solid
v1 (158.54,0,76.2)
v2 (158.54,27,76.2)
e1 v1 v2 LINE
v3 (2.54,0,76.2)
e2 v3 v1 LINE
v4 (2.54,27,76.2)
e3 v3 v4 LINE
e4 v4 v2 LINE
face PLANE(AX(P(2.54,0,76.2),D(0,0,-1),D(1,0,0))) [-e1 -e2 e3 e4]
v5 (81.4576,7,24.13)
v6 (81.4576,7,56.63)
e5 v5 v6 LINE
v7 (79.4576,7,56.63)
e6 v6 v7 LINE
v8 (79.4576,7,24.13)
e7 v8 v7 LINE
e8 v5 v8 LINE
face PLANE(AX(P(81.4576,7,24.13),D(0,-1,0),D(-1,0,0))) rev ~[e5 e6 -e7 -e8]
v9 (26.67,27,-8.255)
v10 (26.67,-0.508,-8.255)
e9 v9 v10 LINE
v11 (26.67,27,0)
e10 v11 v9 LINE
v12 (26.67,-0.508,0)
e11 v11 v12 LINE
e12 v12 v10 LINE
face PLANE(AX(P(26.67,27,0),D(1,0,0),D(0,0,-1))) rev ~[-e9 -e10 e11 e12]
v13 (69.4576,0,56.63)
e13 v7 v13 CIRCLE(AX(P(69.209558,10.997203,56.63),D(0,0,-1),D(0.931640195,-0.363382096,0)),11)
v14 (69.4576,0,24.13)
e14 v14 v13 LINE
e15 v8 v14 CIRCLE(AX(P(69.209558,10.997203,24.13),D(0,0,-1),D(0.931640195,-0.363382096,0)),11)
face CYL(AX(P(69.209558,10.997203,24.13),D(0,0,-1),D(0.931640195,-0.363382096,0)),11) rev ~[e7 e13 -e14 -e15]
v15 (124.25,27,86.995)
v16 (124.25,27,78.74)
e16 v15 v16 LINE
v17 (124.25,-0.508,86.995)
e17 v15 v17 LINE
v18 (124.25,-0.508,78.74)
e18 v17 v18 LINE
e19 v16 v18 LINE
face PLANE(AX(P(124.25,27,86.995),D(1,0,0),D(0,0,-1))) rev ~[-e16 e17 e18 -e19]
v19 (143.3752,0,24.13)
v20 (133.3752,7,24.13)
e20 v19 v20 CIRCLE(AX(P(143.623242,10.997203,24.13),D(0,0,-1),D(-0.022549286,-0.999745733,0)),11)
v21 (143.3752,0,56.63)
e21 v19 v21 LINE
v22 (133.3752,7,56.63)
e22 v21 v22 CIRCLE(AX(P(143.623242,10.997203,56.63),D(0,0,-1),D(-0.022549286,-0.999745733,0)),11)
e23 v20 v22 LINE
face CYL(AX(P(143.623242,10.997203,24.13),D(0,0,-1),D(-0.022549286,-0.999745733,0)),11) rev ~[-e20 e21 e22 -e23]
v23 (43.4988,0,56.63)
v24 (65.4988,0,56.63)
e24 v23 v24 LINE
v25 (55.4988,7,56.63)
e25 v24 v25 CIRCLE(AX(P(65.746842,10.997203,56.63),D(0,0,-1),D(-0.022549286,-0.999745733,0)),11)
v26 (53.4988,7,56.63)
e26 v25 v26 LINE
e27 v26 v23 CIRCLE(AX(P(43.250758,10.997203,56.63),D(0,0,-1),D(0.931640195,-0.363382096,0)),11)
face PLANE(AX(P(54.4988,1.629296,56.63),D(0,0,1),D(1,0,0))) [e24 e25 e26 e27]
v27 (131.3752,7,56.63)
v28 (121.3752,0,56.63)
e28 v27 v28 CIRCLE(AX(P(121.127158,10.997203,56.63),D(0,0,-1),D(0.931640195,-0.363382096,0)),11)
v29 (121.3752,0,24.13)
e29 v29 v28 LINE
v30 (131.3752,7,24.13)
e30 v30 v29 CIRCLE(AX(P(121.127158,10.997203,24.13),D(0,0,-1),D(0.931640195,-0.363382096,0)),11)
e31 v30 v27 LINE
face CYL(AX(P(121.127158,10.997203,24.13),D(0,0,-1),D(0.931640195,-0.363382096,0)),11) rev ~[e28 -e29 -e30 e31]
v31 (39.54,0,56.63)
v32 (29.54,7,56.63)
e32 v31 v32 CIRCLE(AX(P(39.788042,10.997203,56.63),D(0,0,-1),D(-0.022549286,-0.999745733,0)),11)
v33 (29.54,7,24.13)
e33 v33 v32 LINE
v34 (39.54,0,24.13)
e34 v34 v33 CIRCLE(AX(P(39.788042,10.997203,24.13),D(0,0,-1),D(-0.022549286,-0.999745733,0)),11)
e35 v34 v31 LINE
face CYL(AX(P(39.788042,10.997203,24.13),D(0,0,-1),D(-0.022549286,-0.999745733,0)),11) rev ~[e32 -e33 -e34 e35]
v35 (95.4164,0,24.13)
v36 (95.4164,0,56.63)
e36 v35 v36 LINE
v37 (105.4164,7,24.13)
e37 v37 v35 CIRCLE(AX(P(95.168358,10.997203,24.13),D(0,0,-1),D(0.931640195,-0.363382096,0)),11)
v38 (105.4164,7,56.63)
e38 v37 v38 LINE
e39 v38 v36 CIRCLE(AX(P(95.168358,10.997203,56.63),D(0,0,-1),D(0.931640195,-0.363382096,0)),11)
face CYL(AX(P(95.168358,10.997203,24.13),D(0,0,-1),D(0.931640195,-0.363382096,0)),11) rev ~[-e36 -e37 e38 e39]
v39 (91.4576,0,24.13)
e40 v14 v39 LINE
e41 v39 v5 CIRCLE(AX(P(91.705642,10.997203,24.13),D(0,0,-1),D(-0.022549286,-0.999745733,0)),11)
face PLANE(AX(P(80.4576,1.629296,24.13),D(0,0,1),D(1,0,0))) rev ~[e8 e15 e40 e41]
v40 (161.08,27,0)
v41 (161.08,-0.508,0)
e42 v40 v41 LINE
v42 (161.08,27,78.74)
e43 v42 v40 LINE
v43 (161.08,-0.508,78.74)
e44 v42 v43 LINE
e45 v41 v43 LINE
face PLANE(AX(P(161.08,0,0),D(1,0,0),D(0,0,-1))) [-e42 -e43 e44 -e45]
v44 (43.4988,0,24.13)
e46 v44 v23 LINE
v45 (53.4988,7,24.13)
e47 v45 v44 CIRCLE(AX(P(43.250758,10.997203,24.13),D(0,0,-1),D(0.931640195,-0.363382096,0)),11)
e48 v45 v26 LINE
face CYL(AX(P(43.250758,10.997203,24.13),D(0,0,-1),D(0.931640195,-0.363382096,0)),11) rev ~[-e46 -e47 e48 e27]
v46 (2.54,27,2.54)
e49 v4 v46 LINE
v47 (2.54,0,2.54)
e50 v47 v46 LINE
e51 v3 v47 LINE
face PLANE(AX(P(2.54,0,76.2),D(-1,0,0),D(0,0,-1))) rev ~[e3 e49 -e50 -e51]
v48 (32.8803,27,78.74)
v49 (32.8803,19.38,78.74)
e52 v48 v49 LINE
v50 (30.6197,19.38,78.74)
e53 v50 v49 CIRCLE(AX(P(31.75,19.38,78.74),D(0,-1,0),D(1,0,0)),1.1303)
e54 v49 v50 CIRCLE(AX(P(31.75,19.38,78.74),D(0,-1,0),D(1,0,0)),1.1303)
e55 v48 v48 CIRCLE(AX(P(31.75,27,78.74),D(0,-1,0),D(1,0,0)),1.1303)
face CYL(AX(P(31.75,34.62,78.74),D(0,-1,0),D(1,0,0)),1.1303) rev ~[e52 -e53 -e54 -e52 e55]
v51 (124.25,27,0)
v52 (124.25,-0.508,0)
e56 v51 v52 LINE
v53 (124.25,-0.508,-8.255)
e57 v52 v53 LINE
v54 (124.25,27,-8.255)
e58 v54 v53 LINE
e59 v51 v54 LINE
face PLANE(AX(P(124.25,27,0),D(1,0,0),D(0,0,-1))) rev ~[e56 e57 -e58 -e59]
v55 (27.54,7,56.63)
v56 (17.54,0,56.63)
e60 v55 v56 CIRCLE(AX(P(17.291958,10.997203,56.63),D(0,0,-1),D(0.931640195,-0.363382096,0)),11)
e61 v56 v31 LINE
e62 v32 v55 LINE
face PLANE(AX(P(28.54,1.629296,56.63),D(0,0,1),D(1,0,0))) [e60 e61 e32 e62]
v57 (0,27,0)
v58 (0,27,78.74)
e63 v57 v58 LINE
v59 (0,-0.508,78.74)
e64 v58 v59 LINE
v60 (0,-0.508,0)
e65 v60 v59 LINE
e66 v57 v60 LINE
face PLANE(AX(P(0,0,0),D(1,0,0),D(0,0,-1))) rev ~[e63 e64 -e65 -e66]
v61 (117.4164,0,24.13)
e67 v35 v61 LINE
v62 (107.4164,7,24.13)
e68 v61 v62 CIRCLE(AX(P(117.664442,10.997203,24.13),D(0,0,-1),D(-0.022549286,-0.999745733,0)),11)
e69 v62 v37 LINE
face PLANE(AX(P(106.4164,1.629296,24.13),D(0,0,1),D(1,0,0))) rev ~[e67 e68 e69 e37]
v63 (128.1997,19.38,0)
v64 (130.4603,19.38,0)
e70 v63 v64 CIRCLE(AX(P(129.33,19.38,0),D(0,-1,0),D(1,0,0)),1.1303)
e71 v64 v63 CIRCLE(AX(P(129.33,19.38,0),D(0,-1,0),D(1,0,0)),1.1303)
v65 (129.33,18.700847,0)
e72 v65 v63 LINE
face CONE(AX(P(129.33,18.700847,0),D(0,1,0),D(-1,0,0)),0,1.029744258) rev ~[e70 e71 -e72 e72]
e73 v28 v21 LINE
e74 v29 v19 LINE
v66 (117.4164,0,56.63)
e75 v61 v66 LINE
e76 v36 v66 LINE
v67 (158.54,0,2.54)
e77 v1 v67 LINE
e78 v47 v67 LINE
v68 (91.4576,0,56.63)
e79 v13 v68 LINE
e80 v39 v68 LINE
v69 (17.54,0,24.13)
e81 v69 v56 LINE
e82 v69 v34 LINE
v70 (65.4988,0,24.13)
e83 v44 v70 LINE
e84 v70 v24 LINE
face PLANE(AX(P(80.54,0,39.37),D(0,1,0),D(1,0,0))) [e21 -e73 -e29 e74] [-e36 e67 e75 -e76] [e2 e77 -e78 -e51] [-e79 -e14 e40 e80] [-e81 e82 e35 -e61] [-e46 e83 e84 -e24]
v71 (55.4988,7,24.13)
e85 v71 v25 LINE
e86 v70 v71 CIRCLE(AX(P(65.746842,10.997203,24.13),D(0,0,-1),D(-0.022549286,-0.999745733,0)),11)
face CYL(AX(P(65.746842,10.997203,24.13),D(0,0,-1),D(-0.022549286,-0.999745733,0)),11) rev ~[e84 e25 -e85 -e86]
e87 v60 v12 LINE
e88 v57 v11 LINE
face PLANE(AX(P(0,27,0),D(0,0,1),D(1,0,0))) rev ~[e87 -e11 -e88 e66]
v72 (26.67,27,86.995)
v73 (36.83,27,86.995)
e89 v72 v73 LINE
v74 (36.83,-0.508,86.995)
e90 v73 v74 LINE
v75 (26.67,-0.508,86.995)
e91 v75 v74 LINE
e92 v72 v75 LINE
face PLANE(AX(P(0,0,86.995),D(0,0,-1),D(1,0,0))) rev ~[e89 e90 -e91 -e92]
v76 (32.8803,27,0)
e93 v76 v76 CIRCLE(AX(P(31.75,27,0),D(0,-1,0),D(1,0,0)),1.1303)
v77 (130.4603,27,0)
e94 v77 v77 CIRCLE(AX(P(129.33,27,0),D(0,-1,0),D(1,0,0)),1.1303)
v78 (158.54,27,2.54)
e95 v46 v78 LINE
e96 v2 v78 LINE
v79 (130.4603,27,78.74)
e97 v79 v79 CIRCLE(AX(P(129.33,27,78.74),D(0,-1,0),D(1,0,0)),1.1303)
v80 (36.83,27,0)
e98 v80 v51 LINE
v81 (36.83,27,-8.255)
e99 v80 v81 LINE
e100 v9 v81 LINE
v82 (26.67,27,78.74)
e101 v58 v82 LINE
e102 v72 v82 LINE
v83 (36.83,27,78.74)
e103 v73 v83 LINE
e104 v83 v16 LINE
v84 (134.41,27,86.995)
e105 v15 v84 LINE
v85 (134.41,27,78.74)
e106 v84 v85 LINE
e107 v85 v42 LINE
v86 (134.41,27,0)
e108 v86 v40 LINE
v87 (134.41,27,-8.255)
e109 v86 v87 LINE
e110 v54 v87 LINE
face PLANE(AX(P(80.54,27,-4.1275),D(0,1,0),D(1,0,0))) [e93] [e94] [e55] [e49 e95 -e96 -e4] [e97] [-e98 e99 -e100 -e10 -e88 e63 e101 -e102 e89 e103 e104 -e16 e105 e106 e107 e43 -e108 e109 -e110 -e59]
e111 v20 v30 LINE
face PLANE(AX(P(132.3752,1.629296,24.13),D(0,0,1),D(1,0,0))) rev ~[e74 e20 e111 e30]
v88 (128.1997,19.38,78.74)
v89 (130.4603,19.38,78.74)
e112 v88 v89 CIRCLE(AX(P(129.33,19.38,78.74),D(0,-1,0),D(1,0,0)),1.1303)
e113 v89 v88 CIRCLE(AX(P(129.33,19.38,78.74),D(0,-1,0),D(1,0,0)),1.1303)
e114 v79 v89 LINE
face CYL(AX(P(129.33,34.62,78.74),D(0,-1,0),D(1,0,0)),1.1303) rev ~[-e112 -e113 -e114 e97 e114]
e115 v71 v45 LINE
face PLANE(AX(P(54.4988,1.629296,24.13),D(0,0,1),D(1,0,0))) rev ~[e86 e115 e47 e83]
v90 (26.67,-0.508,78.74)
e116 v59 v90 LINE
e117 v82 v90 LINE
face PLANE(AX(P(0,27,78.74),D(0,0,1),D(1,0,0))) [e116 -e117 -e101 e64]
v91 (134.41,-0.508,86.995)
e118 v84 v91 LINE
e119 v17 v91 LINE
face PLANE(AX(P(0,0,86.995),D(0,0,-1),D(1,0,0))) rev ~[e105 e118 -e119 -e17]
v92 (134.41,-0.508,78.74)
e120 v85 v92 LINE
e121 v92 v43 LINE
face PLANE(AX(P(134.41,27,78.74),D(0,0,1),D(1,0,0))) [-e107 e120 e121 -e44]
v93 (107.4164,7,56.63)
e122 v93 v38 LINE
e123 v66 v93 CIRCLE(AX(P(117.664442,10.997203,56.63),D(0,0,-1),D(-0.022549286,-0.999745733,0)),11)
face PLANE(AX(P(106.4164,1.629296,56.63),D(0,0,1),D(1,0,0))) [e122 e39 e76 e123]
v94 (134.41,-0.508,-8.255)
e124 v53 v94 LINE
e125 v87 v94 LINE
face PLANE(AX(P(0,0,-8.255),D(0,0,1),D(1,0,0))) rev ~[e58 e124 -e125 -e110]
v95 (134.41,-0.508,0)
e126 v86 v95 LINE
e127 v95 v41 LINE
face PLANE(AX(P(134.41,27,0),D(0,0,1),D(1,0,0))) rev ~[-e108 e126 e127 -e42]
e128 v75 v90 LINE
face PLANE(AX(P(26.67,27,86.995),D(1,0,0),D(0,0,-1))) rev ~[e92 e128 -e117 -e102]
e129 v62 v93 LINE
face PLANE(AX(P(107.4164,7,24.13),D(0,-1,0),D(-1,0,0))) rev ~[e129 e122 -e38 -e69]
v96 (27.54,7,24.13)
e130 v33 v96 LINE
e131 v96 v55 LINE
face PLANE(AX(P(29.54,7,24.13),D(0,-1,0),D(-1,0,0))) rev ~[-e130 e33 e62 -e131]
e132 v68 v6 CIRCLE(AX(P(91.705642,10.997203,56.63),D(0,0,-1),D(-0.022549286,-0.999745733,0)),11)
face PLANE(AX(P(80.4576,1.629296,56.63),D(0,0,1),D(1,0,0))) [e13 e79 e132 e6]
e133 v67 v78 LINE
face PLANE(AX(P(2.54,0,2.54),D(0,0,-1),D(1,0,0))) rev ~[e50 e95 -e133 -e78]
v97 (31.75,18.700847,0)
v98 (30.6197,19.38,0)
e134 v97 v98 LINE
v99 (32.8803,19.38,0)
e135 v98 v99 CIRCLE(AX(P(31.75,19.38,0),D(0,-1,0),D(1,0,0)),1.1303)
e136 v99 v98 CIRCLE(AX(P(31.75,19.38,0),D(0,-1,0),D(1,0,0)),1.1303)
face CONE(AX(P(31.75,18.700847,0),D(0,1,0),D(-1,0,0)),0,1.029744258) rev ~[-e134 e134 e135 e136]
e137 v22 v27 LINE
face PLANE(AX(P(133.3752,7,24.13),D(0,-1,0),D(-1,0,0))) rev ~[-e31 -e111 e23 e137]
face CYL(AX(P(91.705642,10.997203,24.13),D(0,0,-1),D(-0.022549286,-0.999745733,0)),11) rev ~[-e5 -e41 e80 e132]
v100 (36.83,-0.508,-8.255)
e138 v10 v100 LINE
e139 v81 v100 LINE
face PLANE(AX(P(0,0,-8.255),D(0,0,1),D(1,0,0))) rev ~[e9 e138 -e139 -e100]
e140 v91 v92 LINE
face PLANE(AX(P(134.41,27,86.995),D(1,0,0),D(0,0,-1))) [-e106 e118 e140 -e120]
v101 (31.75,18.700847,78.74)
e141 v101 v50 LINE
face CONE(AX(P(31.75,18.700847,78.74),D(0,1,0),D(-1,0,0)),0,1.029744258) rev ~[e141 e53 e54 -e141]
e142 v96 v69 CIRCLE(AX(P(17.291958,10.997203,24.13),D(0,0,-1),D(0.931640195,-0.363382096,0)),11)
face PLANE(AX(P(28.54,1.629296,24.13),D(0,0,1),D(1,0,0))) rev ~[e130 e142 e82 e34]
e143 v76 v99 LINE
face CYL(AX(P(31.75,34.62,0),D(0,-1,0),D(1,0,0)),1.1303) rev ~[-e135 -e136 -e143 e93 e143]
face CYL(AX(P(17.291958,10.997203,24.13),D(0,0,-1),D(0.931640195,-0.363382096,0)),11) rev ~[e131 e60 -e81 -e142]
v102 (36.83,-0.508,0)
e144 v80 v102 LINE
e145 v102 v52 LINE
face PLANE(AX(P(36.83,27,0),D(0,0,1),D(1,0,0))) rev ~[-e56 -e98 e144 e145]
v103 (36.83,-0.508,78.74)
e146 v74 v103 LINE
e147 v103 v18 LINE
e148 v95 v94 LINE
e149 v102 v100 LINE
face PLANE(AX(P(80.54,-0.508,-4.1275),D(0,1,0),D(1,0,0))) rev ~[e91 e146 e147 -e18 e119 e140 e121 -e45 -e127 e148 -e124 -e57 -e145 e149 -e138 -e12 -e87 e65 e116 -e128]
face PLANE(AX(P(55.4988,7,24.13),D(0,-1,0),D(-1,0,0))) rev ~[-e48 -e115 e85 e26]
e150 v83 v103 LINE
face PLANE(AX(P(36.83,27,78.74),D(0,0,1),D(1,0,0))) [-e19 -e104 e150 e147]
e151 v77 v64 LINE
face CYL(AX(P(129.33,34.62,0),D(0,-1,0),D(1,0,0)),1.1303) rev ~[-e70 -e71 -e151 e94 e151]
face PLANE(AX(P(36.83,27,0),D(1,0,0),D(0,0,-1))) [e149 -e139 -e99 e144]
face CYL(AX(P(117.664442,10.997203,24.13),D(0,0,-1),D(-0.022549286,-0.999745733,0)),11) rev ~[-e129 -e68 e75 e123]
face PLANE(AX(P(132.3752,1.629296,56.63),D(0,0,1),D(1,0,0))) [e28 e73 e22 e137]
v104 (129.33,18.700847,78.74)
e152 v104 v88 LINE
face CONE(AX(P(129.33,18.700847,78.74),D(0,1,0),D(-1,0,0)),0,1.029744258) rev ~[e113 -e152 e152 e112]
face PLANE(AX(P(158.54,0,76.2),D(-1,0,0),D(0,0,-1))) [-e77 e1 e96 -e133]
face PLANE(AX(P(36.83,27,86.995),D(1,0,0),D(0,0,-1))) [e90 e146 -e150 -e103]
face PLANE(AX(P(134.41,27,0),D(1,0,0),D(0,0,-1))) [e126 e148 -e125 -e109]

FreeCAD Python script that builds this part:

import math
import FreeCAD as App
import Part
import Sketcher
from FreeCAD import Vector
Q = App.Units.Quantity

doc = App.newDocument("Part")
body = doc.addObject("PartDesign::Body", "Body")

sketch1 = doc.addObject("Sketcher::SketchObject", "Sketch")
body.addObject(sketch1)
sketch1.AttachmentSupport = (doc.XZ_Plane, [""])
sketch1.MapMode = "FlatFace"
sketch1.addGeometry(Part.LineSegment(Vector(0, 0, 0), Vector(0, 79, 0)), False)
sketch1.addGeometry(Part.LineSegment(Vector(0, 79, 0), Vector(161, 79, 0)), False)
sketch1.addGeometry(Part.LineSegment(Vector(161, 79, 0), Vector(161, 0, 0)), False)
sketch1.addGeometry(Part.LineSegment(Vector(161, 0, 0), Vector(0, 0, 0)), False)
sketch1.addConstraint(Sketcher.Constraint("Coincident", 0, 2, 1, 1))
sketch1.addConstraint(Sketcher.Constraint("Coincident", 1, 2, 2, 1))
sketch1.addConstraint(Sketcher.Constraint("Coincident", 2, 2, 3, 1))
sketch1.addConstraint(Sketcher.Constraint("Coincident", 3, 2, 0, 1))
sketch1.addConstraint(Sketcher.Constraint("Vertical", 0))
sketch1.addConstraint(Sketcher.Constraint("Horizontal", 1))
sketch1.addConstraint(Sketcher.Constraint("Vertical", 2))
sketch1.addConstraint(Sketcher.Constraint("Horizontal", 3))
sketch1.addConstraint(Sketcher.Constraint("Coincident", 3, 2, -1, 1))
sketch1.addConstraint(Sketcher.Constraint("DistanceY", 0, 1, 0, 2, Q("3.1 in")))
sketch1.addConstraint(Sketcher.Constraint("DistanceX", 1, 1, 1, 2, 161.08))
pad1 = doc.addObject("PartDesign::Pad", "Pad")
body.addObject(pad1)
pad1.Profile = sketch1
pad1.Length = Q("0.02 in")

sketch2 = doc.addObject("Sketcher::SketchObject", "Sketch001")
body.addObject(sketch2)
sketch2.AttachmentSupport = (doc.XZ_Plane, [""])
sketch2.MapMode = "FlatFace"
sketch2.addGeometry(Part.LineSegment(Vector(0, -8, 0), Vector(0, 87, 0)), False)
sketch2.addGeometry(Part.LineSegment(Vector(0, 87, 0), Vector(161, 87, 0)), False)
sketch2.addGeometry(Part.LineSegment(Vector(161, 87, 0), Vector(161, -8, 0)), False)
sketch2.addGeometry(Part.LineSegment(Vector(161, -8, 0), Vector(0, -8, 0)), False)
sketch2.addGeometry(Part.LineSegment(Vector(159, 76, 0), Vector(3, 76, 0)), False)
sketch2.addGeometry(Part.LineSegment(Vector(3, 76, 0), Vector(3, 3, 0)), False)
sketch2.addGeometry(Part.LineSegment(Vector(3, 3, 0), Vector(159, 3, 0)), False)
sketch2.addGeometry(Part.LineSegment(Vector(159, 3, 0), Vector(159, 76, 0)), False)
sketch2.addConstraint(Sketcher.Constraint("Coincident", 0, 2, 1, 1))
sketch2.addConstraint(Sketcher.Constraint("Coincident", 1, 2, 2, 1))
sketch2.addConstraint(Sketcher.Constraint("Coincident", 2, 2, 3, 1))
sketch2.addConstraint(Sketcher.Constraint("Coincident", 3, 2, 0, 1))
sketch2.addConstraint(Sketcher.Constraint("Coincident", 4, 2, 5, 1))
sketch2.addConstraint(Sketcher.Constraint("Coincident", 5, 2, 6, 1))
sketch2.addConstraint(Sketcher.Constraint("Coincident", 6, 2, 7, 1))
sketch2.addConstraint(Sketcher.Constraint("Coincident", 7, 2, 4, 1))
sketch2.addConstraint(Sketcher.Constraint("Vertical", 0))
sketch2.addConstraint(Sketcher.Constraint("Horizontal", 1))
sketch2.addConstraint(Sketcher.Constraint("Vertical", 2))
sketch2.addConstraint(Sketcher.Constraint("Horizontal", 3))
sketch2.addConstraint(Sketcher.Constraint("Horizontal", 4))
sketch2.addConstraint(Sketcher.Constraint("Vertical", 5))
sketch2.addConstraint(Sketcher.Constraint("Horizontal", 6))
sketch2.addConstraint(Sketcher.Constraint("Vertical", 7))
sketch2.addConstraint(Sketcher.Constraint("PointOnObject", 0, 2, -2))
sketch2.addConstraint(Sketcher.Constraint("DistanceY", 5, 2, 5, 1, Q("2.9 in")))
sketch2.addConstraint(Sketcher.Constraint("DistanceY", -1, 1, 4, 2, Q("3 in")))
sketch2.addConstraint(Sketcher.Constraint("DistanceY", 0, 1, 0, 2, Q("3.75 in")))
sketch2.addConstraint(Sketcher.Constraint("DistanceX", -1, 1, 4, 2, Q("0.1 in")))
sketch2.addConstraint(Sketcher.Constraint("DistanceX", 6, 2, 2, 2, Q("0.1 in")))
sketch2.addConstraint(Sketcher.Constraint("DistanceY", -1, 1, 0, 2, Q("3.425 in")))
sketch2.addConstraint(Sketcher.Constraint("DistanceX", 1, 1, 1, 2, 161.08))
pad2 = doc.addObject("PartDesign::Pad", "Pad001")
body.addObject(pad2)
pad2.Profile = sketch2
pad2.Length = 27
pad2.Reversed = True

sketch3 = doc.addObject("Sketcher::SketchObject", "Sketch002")
body.addObject(sketch3)
sketch3.AttachmentSupport = (doc.XY_Plane, [""])
sketch3.MapMode = "FlatFace"
sketch3.AttachmentOffset = App.Placement(Vector(0, 0, 0.95 * 25.4), App.Rotation())
sketch3.addGeometry(Part.LineSegment(Vector(29.5, 7, 0), Vector(27.5, 7, 0)), False)
sketch3.addGeometry(Part.ArcOfCircle(Part.Circle(Vector(17.3, 11, 0), Vector(0, 0, 1), 11), math.radians(-89), math.radians(-21)), False)
sketch3.addGeometry(Part.LineSegment(Vector(17.5, 0, 0), Vector(39.5, 0, 0)), False)
sketch3.addGeometry(Part.ArcOfCircle(Part.Circle(Vector(39.8, 11, 0), Vector(0, 0, 1), 11), math.radians(-159), math.radians(-91)), False)
sketch3.addGeometry(Part.LineSegment(Vector(55.5, 7, 0), Vector(53.5, 7, 0)), False)
sketch3.addGeometry(Part.ArcOfCircle(Part.Circle(Vector(43.3, 11, 0), Vector(0, 0, 1), 11), math.radians(-89), math.radians(-21)), False)
sketch3.addGeometry(Part.LineSegment(Vector(43.5, 0, 0), Vector(65.5, 0, 0)), False)
sketch3.addGeometry(Part.ArcOfCircle(Part.Circle(Vector(65.7, 11, 0), Vector(0, 0, 1), 11), math.radians(-159), math.radians(-91)), False)
sketch3.addGeometry(Part.LineSegment(Vector(81.5, 7, 0), Vector(79.5, 7, 0)), False)
sketch3.addGeometry(Part.ArcOfCircle(Part.Circle(Vector(69.2, 11, 0), Vector(0, 0, 1), 11), math.radians(-89), math.radians(-21)), False)
sketch3.addGeometry(Part.LineSegment(Vector(69.5, 0, 0), Vector(91.5, 0, 0)), False)
sketch3.addGeometry(Part.ArcOfCircle(Part.Circle(Vector(91.7, 11, 0), Vector(0, 0, 1), 11), math.radians(-159), math.radians(-91)), False)
sketch3.addGeometry(Part.LineSegment(Vector(107.4, 7, 0), Vector(105.4, 7, 0)), False)
sketch3.addGeometry(Part.ArcOfCircle(Part.Circle(Vector(95.2, 11, 0), Vector(0, 0, 1), 11), math.radians(-89), math.radians(-21)), False)
sketch3.addGeometry(Part.LineSegment(Vector(95.4, 0, 0), Vector(117.4, 0, 0)), False)
sketch3.addGeometry(Part.ArcOfCircle(Part.Circle(Vector(117.7, 11, 0), Vector(0, 0, 1), 11), math.radians(-159), math.radians(-91)), False)
sketch3.addGeometry(Part.LineSegment(Vector(133.4, 7, 0), Vector(131.4, 7, 0)), False)
sketch3.addGeometry(Part.ArcOfCircle(Part.Circle(Vector(121.1, 11, 0), Vector(0, 0, 1), 11), math.radians(-89), math.radians(-21)), False)
sketch3.addGeometry(Part.LineSegment(Vector(121.4, 0, 0), Vector(143.4, 0, 0)), False)
sketch3.addGeometry(Part.ArcOfCircle(Part.Circle(Vector(143.6, 11, 0), Vector(0, 0, 1), 11), math.radians(-159), math.radians(-91)), False)
sketch3.addConstraint(Sketcher.Constraint("Coincident", 0, 2, 1, 2))
sketch3.addConstraint(Sketcher.Constraint("Coincident", 1, 1, 2, 1))
sketch3.addConstraint(Sketcher.Constraint("Coincident", 2, 2, 3, 2))
sketch3.addConstraint(Sketcher.Constraint("Coincident", 3, 1, 0, 1))
sketch3.addConstraint(Sketcher.Constraint("Coincident", 4, 2, 5, 2))
sketch3.addConstraint(Sketcher.Constraint("Coincident", 5, 1, 6, 1))
sketch3.addConstraint(Sketcher.Constraint("Coincident", 6, 2, 7, 2))
sketch3.addConstraint(Sketcher.Constraint("Coincident", 7, 1, 4, 1))
sketch3.addConstraint(Sketcher.Constraint("Coincident", 8, 2, 9, 2))
sketch3.addConstraint(Sketcher.Constraint("Coincident", 9, 1, 10, 1))
sketch3.addConstraint(Sketcher.Constraint("Coincident", 10, 2, 11, 2))
sketch3.addConstraint(Sketcher.Constraint("Coincident", 11, 1, 8, 1))
sketch3.addConstraint(Sketcher.Constraint("Coincident", 12, 2, 13, 2))
sketch3.addConstraint(Sketcher.Constraint("Coincident", 13, 1, 14, 1))
sketch3.addConstraint(Sketcher.Constraint("Coincident", 14, 2, 15, 2))
sketch3.addConstraint(Sketcher.Constraint("Coincident", 15, 1, 12, 1))
sketch3.addConstraint(Sketcher.Constraint("Coincident", 16, 2, 17, 2))
sketch3.addConstraint(Sketcher.Constraint("Coincident", 17, 1, 18, 1))
sketch3.addConstraint(Sketcher.Constraint("Coincident", 18, 2, 19, 2))
sketch3.addConstraint(Sketcher.Constraint("Coincident", 19, 1, 16, 1))
sketch3.addConstraint(Sketcher.Constraint("Horizontal", 0))
sketch3.addConstraint(Sketcher.Constraint("Horizontal", 2))
sketch3.addConstraint(Sketcher.Constraint("Horizontal", 4))
sketch3.addConstraint(Sketcher.Constraint("Horizontal", 6))
sketch3.addConstraint(Sketcher.Constraint("Horizontal", 8))
sketch3.addConstraint(Sketcher.Constraint("Horizontal", 10))
sketch3.addConstraint(Sketcher.Constraint("Horizontal", 12))
sketch3.addConstraint(Sketcher.Constraint("Horizontal", 14))
sketch3.addConstraint(Sketcher.Constraint("Horizontal", 16))
sketch3.addConstraint(Sketcher.Constraint("Horizontal", 18))
sketch3.addConstraint(Sketcher.Constraint("Equal", 1, 3))
sketch3.addConstraint(Sketcher.Constraint("Equal", 3, 5))
sketch3.addConstraint(Sketcher.Constraint("Equal", 5, 7))
sketch3.addConstraint(Sketcher.Constraint("Equal", 7, 9))
sketch3.addConstraint(Sketcher.Constraint("Equal", 9, 11))
sketch3.addConstraint(Sketcher.Constraint("Equal", 11, 13))
sketch3.addConstraint(Sketcher.Constraint("Equal", 13, 15))
sketch3.addConstraint(Sketcher.Constraint("Equal", 15, 17))
sketch3.addConstraint(Sketcher.Constraint("Equal", 17, 19))
sketch3.addConstraint(Sketcher.Constraint("PointOnObject", 1, 1, -1))
sketch3.addConstraint(Sketcher.Constraint("PointOnObject", 5, 1, -1))
sketch3.addConstraint(Sketcher.Constraint("PointOnObject", 9, 1, -1))
sketch3.addConstraint(Sketcher.Constraint("PointOnObject", 13, 1, -1))
sketch3.addConstraint(Sketcher.Constraint("PointOnObject", 17, 1, -1))
sketch3.addConstraint(Sketcher.Constraint("Horizontal", 1, 3, 3, 3))
sketch3.addConstraint(Sketcher.Constraint("Horizontal", 3, 3, 5, 3))
sketch3.addConstraint(Sketcher.Constraint("Horizontal", 5, 3, 7, 3))
sketch3.addConstraint(Sketcher.Constraint("Horizontal", 7, 3, 9, 3))
sketch3.addConstraint(Sketcher.Constraint("Horizontal", 9, 3, 11, 3))
sketch3.addConstraint(Sketcher.Constraint("Horizontal", 11, 3, 13, 3))
sketch3.addConstraint(Sketcher.Constraint("Horizontal", 13, 3, 15, 3))
sketch3.addConstraint(Sketcher.Constraint("Horizontal", 15, 3, 17, 3))
sketch3.addConstraint(Sketcher.Constraint("Horizontal", 17, 3, 19, 3))
sketch3.addConstraint(Sketcher.Constraint("Horizontal", 3, 1, 4, 2))
sketch3.addConstraint(Sketcher.Constraint("Horizontal", 7, 1, 8, 2))
sketch3.addConstraint(Sketcher.Constraint("Horizontal", 11, 1, 12, 2))
sketch3.addConstraint(Sketcher.Constraint("Horizontal", 15, 1, 16, 2))
sketch3.addConstraint(Sketcher.Constraint("Equal", 0, 4))
sketch3.addConstraint(Sketcher.Constraint("Equal", 4, 8))
sketch3.addConstraint(Sketcher.Constraint("Equal", 8, 12))
sketch3.addConstraint(Sketcher.Constraint("Equal", 12, 16))
sketch3.addConstraint(Sketcher.Constraint("Radius", 1, 11.0))
sketch3.addConstraint(Sketcher.Constraint("DistanceX", 1, 3, 5, 3, Q("1.022 in")))
sketch3.addConstraint(Sketcher.Constraint("DistanceX", 5, 3, 9, 3, Q("1.022 in")))
sketch3.addConstraint(Sketcher.Constraint("DistanceX", 9, 3, 13, 3, Q("1.022 in")))
sketch3.addConstraint(Sketcher.Constraint("DistanceX", 13, 3, 17, 3, Q("1.022 in")))
sketch3.addConstraint(Sketcher.Constraint("DistanceX", 0, 2, 0, 1, 2.0))
sketch3.addConstraint(Sketcher.Constraint("DistanceX", 2, 1, 2, 2, 22.0))
sketch3.addConstraint(Sketcher.Constraint("DistanceX", -1, 1, 0, 2, 27.54))
sketch3.addConstraint(Sketcher.Constraint("DistanceY", -1, 1, 0, 2, 7.0))
pad3 = doc.addObject("PartDesign::Pad", "Pad002")
body.addObject(pad3)
pad3.Profile = sketch3
pad3.Length = 32.5

sketch4 = doc.addObject("Sketcher::SketchObject", "Sketch003")
body.addObject(sketch4)
sketch4.AttachmentSupport = (doc.XZ_Plane, [""])
sketch4.MapMode = "FlatFace"
sketch4.addGeometry(Part.LineSegment(Vector(0, -8, 0), Vector(0, 0, 0)), False)
sketch4.addGeometry(Part.LineSegment(Vector(0, 0, 0), Vector(161, 0, 0)), False)
sketch4.addGeometry(Part.LineSegment(Vector(161, 0, 0), Vector(161, -8, 0)), False)
sketch4.addGeometry(Part.LineSegment(Vector(161, -8, 0), Vector(0, -8, 0)), False)
sketch4.addGeometry(Part.LineSegment(Vector(0, 79, 0), Vector(0, 87, 0)), False)
sketch4.addGeometry(Part.LineSegment(Vector(0, 87, 0), Vector(161, 87, 0)), False)
sketch4.addGeometry(Part.LineSegment(Vector(161, 87, 0), Vector(161, 79, 0)), False)
sketch4.addGeometry(Part.LineSegment(Vector(161, 79, 0), Vector(0, 79, 0)), False)
sketch4.addConstraint(Sketcher.Constraint("Coincident", 0, 2, 1, 1))
sketch4.addConstraint(Sketcher.Constraint("Coincident", 1, 2, 2, 1))
sketch4.addConstraint(Sketcher.Constraint("Coincident", 2, 2, 3, 1))
sketch4.addConstraint(Sketcher.Constraint("Coincident", 3, 2, 0, 1))
sketch4.addConstraint(Sketcher.Constraint("Coincident", 4, 2, 5, 1))
sketch4.addConstraint(Sketcher.Constraint("Coincident", 5, 2, 6, 1))
sketch4.addConstraint(Sketcher.Constraint("Coincident", 6, 2, 7, 1))
sketch4.addConstraint(Sketcher.Constraint("Coincident", 7, 2, 4, 1))
sketch4.addConstraint(Sketcher.Constraint("Vertical", 0))
sketch4.addConstraint(Sketcher.Constraint("Horizontal", 1))
sketch4.addConstraint(Sketcher.Constraint("Vertical", 2))
sketch4.addConstraint(Sketcher.Constraint("Horizontal", 3))
sketch4.addConstraint(Sketcher.Constraint("Vertical", 4))
sketch4.addConstraint(Sketcher.Constraint("Horizontal", 5))
sketch4.addConstraint(Sketcher.Constraint("Vertical", 6))
sketch4.addConstraint(Sketcher.Constraint("Horizontal", 7))
sketch4.addConstraint(Sketcher.Constraint("Coincident", 0, 2, -1, 1))
sketch4.addConstraint(Sketcher.Constraint("PointOnObject", 4, 2, -2))
sketch4.addConstraint(Sketcher.Constraint("Vertical", 2, 2, 5, 2))
sketch4.addConstraint(Sketcher.Constraint("Equal", 2, 4))
sketch4.addConstraint(Sketcher.Constraint("DistanceY", -1, 1, 6, 2, Q("3.1 in")))
sketch4.addConstraint(Sketcher.Constraint("DistanceY", 0, 1, 0, 2, Q("0.325 in")))
sketch4.addConstraint(Sketcher.Constraint("DistanceX", 1, 1, 1, 2, 161.08))
pad4 = doc.addObject("PartDesign::Pad", "Pad003")
body.addObject(pad4)
pad4.Profile = sketch4
pad4.Length = Q("0.02 in")

sketch5 = doc.addObject("Sketcher::SketchObject", "Sketch004")
body.addObject(sketch5)
sketch5.AttachmentSupport = (doc.XZ_Plane, [""])
sketch5.MapMode = "FlatFace"
sketch5.AttachmentOffset = App.Placement(Vector(0, 0, -27), App.Rotation())
sketch5.addGeometry(Part.Circle(Vector(31.8, 0, 0), Vector(0, 0, 1), 1.1), False)
sketch5.addGeometry(Part.Circle(Vector(129.3, 0, 0), Vector(0, 0, 1), 1.1), False)
sketch5.addGeometry(Part.Circle(Vector(31.8, 78.7, 0), Vector(0, 0, 1), 1.1), False)
sketch5.addGeometry(Part.Circle(Vector(129.3, 78.7, 0), Vector(0, 0, 1), 1.1), False)
sketch5.addConstraint(Sketcher.Constraint("Equal", 0, 1))
sketch5.addConstraint(Sketcher.Constraint("Equal", 1, 2))
sketch5.addConstraint(Sketcher.Constraint("Equal", 2, 3))
sketch5.addConstraint(Sketcher.Constraint("PointOnObject", 0, 3, -1))
sketch5.addConstraint(Sketcher.Constraint("PointOnObject", 1, 3, -1))
sketch5.addConstraint(Sketcher.Constraint("Horizontal", 2, 3, 3, 3))
sketch5.addConstraint(Sketcher.Constraint("Vertical", 0, 3, 2, 3))
sketch5.addConstraint(Sketcher.Constraint("Vertical", 1, 3, 3, 3))
sketch5.addConstraint(Sketcher.Constraint("Diameter", 0, Q("0.089 in")))
sketch5.addConstraint(Sketcher.Constraint("DistanceY", -1, 1, 2, 3, Q("3.1 in")))
sketch5.addConstraint(Sketcher.Constraint("DistanceX", -1, 1, 0, 3, Q("1.25 in")))
sketch5.addConstraint(Sketcher.Constraint("DistanceX", -1, 1, 1, 3, 129.33))
doc.recompute()
hole = doc.addObject("PartDesign::Hole", "Hole")
body.addObject(hole)
hole.Profile = sketch5
hole.ThreadType = "None"
hole.Diameter = Q("0.089 in")
hole.DepthType = "Dimension"
hole.Depth = Q("0.3 in")
hole.DrillPoint = "Angled"
hole.DrillPointAngle = 118
hole.Reversed = True

sketch6 = doc.addObject("Sketcher::SketchObject", "Sketch005")
body.addObject(sketch6)
sketch6.AttachmentSupport = (doc.XZ_Plane, [""])
sketch6.MapMode = "FlatFace"
sketch6.AttachmentOffset = App.Placement(Vector(0, 0, -27), App.Rotation())
sketch6.addGeometry(Part.LineSegment(Vector(37, -8, 0), Vector(37, 0, 0)), False)
sketch6.addGeometry(Part.LineSegment(Vector(37, 0, 0), Vector(124, 0, 0)), False)
sketch6.addGeometry(Part.LineSegment(Vector(124, 0, 0), Vector(124, -8, 0)), False)
sketch6.addGeometry(Part.LineSegment(Vector(124, -8, 0), Vector(37, -8, 0)), False)
sketch6.addGeometry(Part.LineSegment(Vector(37, 79, 0), Vector(37, 87, 0)), False)
sketch6.addGeometry(Part.LineSegment(Vector(37, 87, 0), Vector(124, 87, 0)), False)
sketch6.addGeometry(Part.LineSegment(Vector(124, 87, 0), Vector(124, 79, 0)), False)
sketch6.addGeometry(Part.LineSegment(Vector(124, 79, 0), Vector(37, 79, 0)), False)
sketch6.addGeometry(Part.LineSegment(Vector(0, -8, 0), Vector(0, 0, 0)), False)
sketch6.addGeometry(Part.LineSegment(Vector(0, 0, 0), Vector(27, 0, 0)), False)
sketch6.addGeometry(Part.LineSegment(Vector(27, 0, 0), Vector(27, -8, 0)), False)
sketch6.addGeometry(Part.LineSegment(Vector(27, -8, 0), Vector(0, -8, 0)), False)
sketch6.addGeometry(Part.LineSegment(Vector(134, -8, 0), Vector(134, 0, 0)), False)
sketch6.addGeometry(Part.LineSegment(Vector(134, 0, 0), Vector(161, 0, 0)), False)
sketch6.addGeometry(Part.LineSegment(Vector(161, 0, 0), Vector(161, -8, 0)), False)
sketch6.addGeometry(Part.LineSegment(Vector(161, -8, 0), Vector(134, -8, 0)), False)
sketch6.addGeometry(Part.LineSegment(Vector(134, 79, 0), Vector(134, 87, 0)), False)
sketch6.addGeometry(Part.LineSegment(Vector(134, 87, 0), Vector(161, 87, 0)), False)
sketch6.addGeometry(Part.LineSegment(Vector(161, 87, 0), Vector(161, 79, 0)), False)
sketch6.addGeometry(Part.LineSegment(Vector(161, 79, 0), Vector(134, 79, 0)), False)
sketch6.addGeometry(Part.LineSegment(Vector(0, 79, 0), Vector(0, 87, 0)), False)
sketch6.addGeometry(Part.LineSegment(Vector(0, 87, 0), Vector(27, 87, 0)), False)
sketch6.addGeometry(Part.LineSegment(Vector(27, 87, 0), Vector(27, 79, 0)), False)
sketch6.addGeometry(Part.LineSegment(Vector(27, 79, 0), Vector(0, 79, 0)), False)
sketch6.addConstraint(Sketcher.Constraint("Coincident", 0, 2, 1, 1))
sketch6.addConstraint(Sketcher.Constraint("Coincident", 1, 2, 2, 1))
sketch6.addConstraint(Sketcher.Constraint("Coincident", 2, 2, 3, 1))
sketch6.addConstraint(Sketcher.Constraint("Coincident", 3, 2, 0, 1))
sketch6.addConstraint(Sketcher.Constraint("Coincident", 4, 2, 5, 1))
sketch6.addConstraint(Sketcher.Constraint("Coincident", 5, 2, 6, 1))
sketch6.addConstraint(Sketcher.Constraint("Coincident", 6, 2, 7, 1))
sketch6.addConstraint(Sketcher.Constraint("Coincident", 7, 2, 4, 1))
sketch6.addConstraint(Sketcher.Constraint("Coincident", 8, 2, 9, 1))
sketch6.addConstraint(Sketcher.Constraint("Coincident", 9, 2, 10, 1))
sketch6.addConstraint(Sketcher.Constraint("Coincident", 10, 2, 11, 1))
sketch6.addConstraint(Sketcher.Constraint("Coincident", 11, 2, 8, 1))
sketch6.addConstraint(Sketcher.Constraint("Coincident", 12, 2, 13, 1))
sketch6.addConstraint(Sketcher.Constraint("Coincident", 13, 2, 14, 1))
sketch6.addConstraint(Sketcher.Constraint("Coincident", 14, 2, 15, 1))
sketch6.addConstraint(Sketcher.Constraint("Coincident", 15, 2, 12, 1))
sketch6.addConstraint(Sketcher.Constraint("Coincident", 16, 2, 17, 1))
sketch6.addConstraint(Sketcher.Constraint("Coincident", 17, 2, 18, 1))
sketch6.addConstraint(Sketcher.Constraint("Coincident", 18, 2, 19, 1))
sketch6.addConstraint(Sketcher.Constraint("Coincident", 19, 2, 16, 1))
sketch6.addConstraint(Sketcher.Constraint("Coincident", 20, 2, 21, 1))
sketch6.addConstraint(Sketcher.Constraint("Coincident", 21, 2, 22, 1))
sketch6.addConstraint(Sketcher.Constraint("Coincident", 22, 2, 23, 1))
sketch6.addConstraint(Sketcher.Constraint("Coincident", 23, 2, 20, 1))
sketch6.addConstraint(Sketcher.Constraint("Vertical", 0))
sketch6.addConstraint(Sketcher.Constraint("Horizontal", 1))
sketch6.addConstraint(Sketcher.Constraint("Vertical", 2))
sketch6.addConstraint(Sketcher.Constraint("Horizontal", 3))
sketch6.addConstraint(Sketcher.Constraint("Vertical", 4))
sketch6.addConstraint(Sketcher.Constraint("Horizontal", 5))
sketch6.addConstraint(Sketcher.Constraint("Vertical", 6))
sketch6.addConstraint(Sketcher.Constraint("Horizontal", 7))
sketch6.addConstraint(Sketcher.Constraint("Vertical", 8))
sketch6.addConstraint(Sketcher.Constraint("Horizontal", 9))
sketch6.addConstraint(Sketcher.Constraint("Vertical", 10))
sketch6.addConstraint(Sketcher.Constraint("Horizontal", 11))
sketch6.addConstraint(Sketcher.Constraint("Vertical", 12))
sketch6.addConstraint(Sketcher.Constraint("Horizontal", 13))
sketch6.addConstraint(Sketcher.Constraint("Vertical", 14))
sketch6.addConstraint(Sketcher.Constraint("Horizontal", 15))
sketch6.addConstraint(Sketcher.Constraint("Vertical", 16))
sketch6.addConstraint(Sketcher.Constraint("Horizontal", 17))
sketch6.addConstraint(Sketcher.Constraint("Vertical", 18))
sketch6.addConstraint(Sketcher.Constraint("Horizontal", 19))
sketch6.addConstraint(Sketcher.Constraint("Vertical", 20))
sketch6.addConstraint(Sketcher.Constraint("Horizontal", 21))
sketch6.addConstraint(Sketcher.Constraint("Vertical", 22))
sketch6.addConstraint(Sketcher.Constraint("Horizontal", 23))
sketch6.addConstraint(Sketcher.Constraint("Coincident", 8, 2, -1, 1))
sketch6.addConstraint(Sketcher.Constraint("PointOnObject", 0, 2, -1))
sketch6.addConstraint(Sketcher.Constraint("PointOnObject", 12, 2, -1))
sketch6.addConstraint(Sketcher.Constraint("PointOnObject", 20, 2, -2))
sketch6.addConstraint(Sketcher.Constraint("Horizontal", 3, 2, 10, 2))
sketch6.addConstraint(Sketcher.Constraint("Horizontal", 11, 2, 14, 2))
sketch6.addConstraint(Sketcher.Constraint("Horizontal", 5, 2, 16, 2))
sketch6.addConstraint(Sketcher.Constraint("Horizontal", 7, 2, 18, 2))
sketch6.addConstraint(Sketcher.Constraint("Horizontal", 17, 2, 20, 2))
sketch6.addConstraint(Sketcher.Constraint("Horizontal", 19, 2, 22, 2))
sketch6.addConstraint(Sketcher.Constraint("Vertical", 3, 2, 4, 2))
sketch6.addConstraint(Sketcher.Constraint("Vertical", 2, 2, 5, 2))
sketch6.addConstraint(Sketcher.Constraint("Vertical", 15, 2, 16, 2))
sketch6.addConstraint(Sketcher.Constraint("Vertical", 14, 2, 17, 2))
sketch6.addConstraint(Sketcher.Constraint("Vertical", 10, 2, 21, 2))
sketch6.addConstraint(Sketcher.Constraint("Equal", 11, 13))
sketch6.addConstraint(Sketcher.Constraint("Equal", 2, 4))
sketch6.addConstraint(Sketcher.Constraint("DistanceX", 9, 1, 9, 2, Q("1.05 in")))
sketch6.addConstraint(Sketcher.Constraint("DistanceY", -1, 1, 6, 2, Q("3.1 in")))
sketch6.addConstraint(Sketcher.Constraint("DistanceX", 9, 2, 0, 2, Q("0.4 in")))
sketch6.addConstraint(Sketcher.Constraint("DistanceX", 1, 2, 12, 2, Q("0.4 in")))
sketch6.addConstraint(Sketcher.Constraint("DistanceY", 0, 1, 0, 2, Q("0.325 in")))
sketch6.addConstraint(Sketcher.Constraint("DistanceX", 1, 1, 1, 2, 87.42))
pocket1 = doc.addObject("PartDesign::Pocket", "Pocket")
body.addObject(pocket1)
pocket1.Profile = sketch6
pocket1.Type = "ThroughAll"
pocket1.Reversed = True

doc.recompute()
